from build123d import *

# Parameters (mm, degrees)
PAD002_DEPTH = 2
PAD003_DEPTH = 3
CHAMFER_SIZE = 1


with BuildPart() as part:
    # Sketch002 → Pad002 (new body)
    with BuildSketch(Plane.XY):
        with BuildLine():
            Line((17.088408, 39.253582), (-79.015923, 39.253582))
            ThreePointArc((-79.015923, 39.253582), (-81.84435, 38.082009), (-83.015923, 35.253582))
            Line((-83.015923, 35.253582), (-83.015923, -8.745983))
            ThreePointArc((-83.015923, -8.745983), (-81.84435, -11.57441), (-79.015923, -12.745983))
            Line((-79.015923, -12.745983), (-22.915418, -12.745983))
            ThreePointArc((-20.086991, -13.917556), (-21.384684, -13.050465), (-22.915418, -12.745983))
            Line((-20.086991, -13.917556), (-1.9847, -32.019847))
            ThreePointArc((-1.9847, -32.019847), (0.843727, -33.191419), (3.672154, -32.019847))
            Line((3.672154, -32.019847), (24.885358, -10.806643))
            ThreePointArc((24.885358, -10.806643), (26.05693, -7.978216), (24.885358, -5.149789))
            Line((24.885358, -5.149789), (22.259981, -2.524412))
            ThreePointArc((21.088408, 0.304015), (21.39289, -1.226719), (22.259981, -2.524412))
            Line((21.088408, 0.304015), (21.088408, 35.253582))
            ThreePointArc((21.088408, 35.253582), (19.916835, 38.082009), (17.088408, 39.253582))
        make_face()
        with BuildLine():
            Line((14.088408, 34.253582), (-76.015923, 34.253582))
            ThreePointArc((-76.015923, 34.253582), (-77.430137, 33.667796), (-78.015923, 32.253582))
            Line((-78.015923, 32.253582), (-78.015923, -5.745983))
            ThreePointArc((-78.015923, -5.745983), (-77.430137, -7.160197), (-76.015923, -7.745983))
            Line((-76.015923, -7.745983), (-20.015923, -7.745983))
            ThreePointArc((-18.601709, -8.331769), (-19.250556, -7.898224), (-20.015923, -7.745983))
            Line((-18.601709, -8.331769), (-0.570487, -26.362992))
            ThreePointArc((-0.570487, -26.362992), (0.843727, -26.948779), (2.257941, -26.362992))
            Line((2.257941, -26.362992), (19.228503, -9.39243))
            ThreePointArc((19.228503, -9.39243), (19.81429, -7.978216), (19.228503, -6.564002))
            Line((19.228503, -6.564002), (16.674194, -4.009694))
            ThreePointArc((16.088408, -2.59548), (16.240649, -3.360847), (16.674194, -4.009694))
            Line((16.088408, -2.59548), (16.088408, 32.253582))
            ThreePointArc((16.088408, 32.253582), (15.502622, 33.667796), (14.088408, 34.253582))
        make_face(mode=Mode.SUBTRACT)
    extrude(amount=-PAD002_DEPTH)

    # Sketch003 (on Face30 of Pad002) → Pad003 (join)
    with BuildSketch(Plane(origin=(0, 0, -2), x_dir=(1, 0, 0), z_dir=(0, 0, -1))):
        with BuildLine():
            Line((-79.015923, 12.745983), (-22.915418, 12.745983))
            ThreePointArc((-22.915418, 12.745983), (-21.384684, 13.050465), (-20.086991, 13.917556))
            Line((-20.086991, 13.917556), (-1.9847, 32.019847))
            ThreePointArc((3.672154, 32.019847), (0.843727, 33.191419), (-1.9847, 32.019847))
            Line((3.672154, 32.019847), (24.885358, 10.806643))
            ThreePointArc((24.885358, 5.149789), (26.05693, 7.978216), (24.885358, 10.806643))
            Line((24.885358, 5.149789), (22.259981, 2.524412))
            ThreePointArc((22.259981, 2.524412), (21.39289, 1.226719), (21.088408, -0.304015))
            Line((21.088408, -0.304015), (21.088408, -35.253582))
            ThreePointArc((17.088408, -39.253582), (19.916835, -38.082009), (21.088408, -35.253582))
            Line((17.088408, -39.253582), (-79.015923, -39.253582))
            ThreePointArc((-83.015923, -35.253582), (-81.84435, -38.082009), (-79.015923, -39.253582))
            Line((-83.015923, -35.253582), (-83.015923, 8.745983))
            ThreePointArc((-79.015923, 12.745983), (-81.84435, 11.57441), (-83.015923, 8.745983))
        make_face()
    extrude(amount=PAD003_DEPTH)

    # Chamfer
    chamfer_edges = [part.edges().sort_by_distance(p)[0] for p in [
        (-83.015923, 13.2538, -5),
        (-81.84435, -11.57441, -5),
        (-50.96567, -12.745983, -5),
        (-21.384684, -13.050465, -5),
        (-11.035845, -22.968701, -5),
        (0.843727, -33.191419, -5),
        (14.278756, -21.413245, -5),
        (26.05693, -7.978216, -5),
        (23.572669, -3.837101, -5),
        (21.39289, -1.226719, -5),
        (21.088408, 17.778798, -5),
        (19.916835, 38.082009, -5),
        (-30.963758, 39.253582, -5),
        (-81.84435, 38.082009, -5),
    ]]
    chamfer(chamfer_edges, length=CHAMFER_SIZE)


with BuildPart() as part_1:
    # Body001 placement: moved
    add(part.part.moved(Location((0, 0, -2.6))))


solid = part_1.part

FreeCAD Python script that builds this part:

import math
import FreeCAD as App
import Part
import Sketcher
from FreeCAD import Vector


def edges_at(feature, points):
    """Names of the edges that pass closest to the given points."""
    edges = feature.Shape.Edges
    near = lambda p: min(range(len(edges)), key=lambda i: edges[i].distToShape(Part.Vertex(*p))[0])
    return sorted({f"Edge{near(p) + 1}" for p in points})

doc = App.newDocument("Part")
params = doc.addObject("Spreadsheet::Sheet", "Params")
for row, (alias, value) in enumerate([
    ("sketch1_radius", "4 mm"),
    ("sketch1_radius2", "1.999999 mm"),
    ("sketch1_width", "56 mm"),
    ("sketch1_length", "30.000001 mm"),
    ("sketch1_length2", "23.999999 mm"),
    ("pad1_length", "2 mm"),
    ("sketch2_radius", "4 mm"),
    ("sketch2_length", "30.000001 mm"),
    ("pad2_length", "3 mm"),
    ("chamfer_size", "1 mm"),
], start=1):
    params.set(f"A{row}", alias)
    params.set(f"B{row}", "=" + value)
    params.setAlias(f"B{row}", alias)

body = doc.addObject("PartDesign::Body", "Body")

sketch1 = doc.addObject("Sketcher::SketchObject", "Sketch")
body.addObject(sketch1)
sketch1.AttachmentSupport = (doc.XY_Plane, [""])
sketch1.MapMode = "FlatFace"
sketch1.addGeometry([
    Part.LineSegment(Vector(17.1, 39.3, 0), Vector(-79, 39.3, 0)),
    Part.ArcOfCircle(Part.Circle(Vector(-79, 35.3, 0), Vector(0, 0, 1), 4), math.radians(90), math.radians(180)),
    Part.LineSegment(Vector(-83, 35.3, 0), Vector(-83, -8.7, 0)),
    Part.ArcOfCircle(Part.Circle(Vector(-79, -8.7, 0), Vector(0, 0, 1), 4), math.radians(-180), math.radians(-90)),
    Part.LineSegment(Vector(-79, -12.7, 0), Vector(-22.9, -12.7, 0)),
    Part.ArcOfCircle(Part.Circle(Vector(-22.9, -16.7, 0), Vector(0, 0, 1), 4), math.radians(45), math.radians(90)),
    Part.LineSegment(Vector(-20.1, -13.9, 0), Vector(-2, -32, 0)),
    Part.ArcOfCircle(Part.Circle(Vector(0.8, -29.2, 0), Vector(0, 0, 1), 4), math.radians(-135), math.radians(-45)),
    Part.LineSegment(Vector(3.7, -32, 0), Vector(24.9, -10.8, 0)),
    Part.ArcOfCircle(Part.Circle(Vector(22.1, -8, 0), Vector(0, 0, 1), 4), math.radians(-45), math.radians(45)),
    Part.LineSegment(Vector(24.9, -5.1, 0), Vector(22.3, -2.5, 0)),
    Part.ArcOfCircle(Part.Circle(Vector(25.1, 0.3, 0), Vector(0, 0, 1), 4), math.radians(180), math.radians(225)),
    Part.LineSegment(Vector(21.1, 0.3, 0), Vector(21.1, 35.3, 0)),
    Part.ArcOfCircle(Part.Circle(Vector(17.1, 35.3, 0), Vector(0, 0, 1), 4), math.radians(0), math.radians(90)),
    Part.LineSegment(Vector(-76, 34.3, 0), Vector(14.1, 34.3, 0)),
    Part.ArcOfCircle(Part.Circle(Vector(14.1, 32.3, 0), Vector(0, 0, 1), 2), math.radians(0), math.radians(90)),
    Part.LineSegment(Vector(16.1, 32.3, 0), Vector(16.1, -2.6, 0)),
    Part.ArcOfCircle(Part.Circle(Vector(18.1, -2.6, 0), Vector(0, 0, 1), 2), math.radians(-180), math.radians(-135)),
    Part.LineSegment(Vector(16.7, -4, 0), Vector(19.2, -6.6, 0)),
    Part.ArcOfCircle(Part.Circle(Vector(17.8, -8, 0), Vector(0, 0, 1), 2), math.radians(-45), math.radians(45)),
    Part.LineSegment(Vector(19.2, -9.4, 0), Vector(2.3, -26.4, 0)),
    Part.ArcOfCircle(Part.Circle(Vector(0.8, -24.9, 0), Vector(0, 0, 1), 2), math.radians(-135), math.radians(-45)),
    Part.LineSegment(Vector(-0.6, -26.4, 0), Vector(-18.6, -8.3, 0)),
    Part.ArcOfCircle(Part.Circle(Vector(-20, -9.7, 0), Vector(0, 0, 1), 2), math.radians(45), math.radians(90)),
    Part.LineSegment(Vector(-20, -7.7, 0), Vector(-76, -7.7, 0)),
    Part.ArcOfCircle(Part.Circle(Vector(-76, -5.7, 0), Vector(0, 0, 1), 2), math.radians(180), math.radians(270)),
    Part.LineSegment(Vector(-78, -5.7, 0), Vector(-78, 32.3, 0)),
    Part.ArcOfCircle(Part.Circle(Vector(-76, 32.3, 0), Vector(0, 0, 1), 2), math.radians(90), math.radians(180)),
], False)
sketch1.addConstraint([
    Sketcher.Constraint("Tangent", 0, 2, 1, 1),
    Sketcher.Constraint("Tangent", 1, 2, 2, 1),
    Sketcher.Constraint("Tangent", 2, 2, 3, 1),
    Sketcher.Constraint("Tangent", 3, 2, 4, 1),
    Sketcher.Constraint("Tangent", 4, 2, 5, 2),
    Sketcher.Constraint("Tangent", 5, 1, 6, 1),
    Sketcher.Constraint("Tangent", 6, 2, 7, 1),
    Sketcher.Constraint("Tangent", 7, 2, 8, 1),
    Sketcher.Constraint("Tangent", 8, 2, 9, 1),
    Sketcher.Constraint("Tangent", 9, 2, 10, 1),
    Sketcher.Constraint("Tangent", 10, 2, 11, 2),
    Sketcher.Constraint("Tangent", 11, 1, 12, 1),
    Sketcher.Constraint("Tangent", 12, 2, 13, 1),
    Sketcher.Constraint("Tangent", 13, 2, 0, 1),
    Sketcher.Constraint("Tangent", 14, 2, 15, 2),
    Sketcher.Constraint("Tangent", 15, 1, 16, 1),
    Sketcher.Constraint("Tangent", 16, 2, 17, 1),
    Sketcher.Constraint("Tangent", 17, 2, 18, 1),
    Sketcher.Constraint("Tangent", 18, 2, 19, 2),
    Sketcher.Constraint("Tangent", 19, 1, 20, 1),
    Sketcher.Constraint("Tangent", 20, 2, 21, 2),
    Sketcher.Constraint("Tangent", 21, 1, 22, 1),
    Sketcher.Constraint("Tangent", 22, 2, 23, 1),
    Sketcher.Constraint("Tangent", 23, 2, 24, 1),
    Sketcher.Constraint("Tangent", 24, 2, 25, 2),
    Sketcher.Constraint("Tangent", 25, 1, 26, 1),
    Sketcher.Constraint("Tangent", 26, 2, 27, 2),
    Sketcher.Constraint("Tangent", 27, 1, 14, 1),
    Sketcher.Constraint("Horizontal", 0),
    Sketcher.Constraint("Vertical", 2),
    Sketcher.Constraint("Horizontal", 4),
    Sketcher.Constraint("Vertical", 12),
    Sketcher.Constraint("Horizontal", 14),
    Sketcher.Constraint("Vertical", 16),
    Sketcher.Constraint("Horizontal", 24),
    Sketcher.Constraint("Vertical", 26),
    Sketcher.Constraint("Equal", 1, 3),
    Sketcher.Constraint("Equal", 3, 5),
    Sketcher.Constraint("Equal", 3, 7),
    Sketcher.Constraint("Equal", 7, 9),
    Sketcher.Constraint("Equal", 5, 11),
    Sketcher.Constraint("Equal", 11, 13),
    Sketcher.Constraint("Equal", 15, 19),
    Sketcher.Constraint("Equal", 19, 21),
    Sketcher.Constraint("Equal", 17, 23),
    Sketcher.Constraint("Equal", 21, 25),
    Sketcher.Constraint("Equal", 25, 27),
    Sketcher.Constraint("Perpendicular", 6, 8),
    Sketcher.Constraint("Perpendicular", 8, 10),
    Sketcher.Constraint("Parallel", 10, 18),
    Sketcher.Constraint("Perpendicular", 18, 20),
    Sketcher.Constraint("Perpendicular", 20, 22),
    Sketcher.Constraint("Horizontal", 9, 3, 19, 3),
    Sketcher.Constraint("Horizontal", 6, 2, 7, 2),
    Sketcher.Constraint("Vertical", 7, 3, 21, 3),
    Sketcher.Constraint("Radius", 1, 4.0),
    Sketcher.Constraint("Radius", 15, 1.999999),
    Sketcher.Constraint("DistanceX", 24, 2, 24, 1, 56.0),
    Sketcher.Constraint("Distance", 8, 30.000001),
    Sketcher.Constraint("Distance", 20, 23.999999),
    Sketcher.Constraint("DistanceX", 15, 3, 13, 3, 2.999998),
    Sketcher.Constraint("DistanceY", 15, 3, 13, 3, 2.999998),
    Sketcher.Constraint("DistanceX", 3, 3, 25, 3, 2.999998),
    Sketcher.Constraint("DistanceY", 3, 3, 25, 3, 2.999998),
    Sketcher.Constraint("Distance", 22, 25.499999),
    Sketcher.Constraint("Radius", 17, 2.000004),
    Sketcher.Constraint("DistanceY", 7, 3, 1, 3, 64.444999),
    Sketcher.Constraint("DistanceX", 0, 2, 0, 1, 96.104331),
    Sketcher.Constraint("DistanceX", 6, 2, -1, 1, 1.9847),
    Sketcher.Constraint("DistanceY", -1, 1, 1, 3, 35.253582),
])
sketch1.setExpression("Constraints[55]", "Params.sketch1_radius")
sketch1.setExpression("Constraints[56]", "Params.sketch1_radius2")
sketch1.setExpression("Constraints[57]", "Params.sketch1_width")
sketch1.setExpression("Constraints[58]", "Params.sketch1_length")
sketch1.setExpression("Constraints[59]", "Params.sketch1_length2")
pad1 = doc.addObject("PartDesign::Pad", "Pad")
body.addObject(pad1)
pad1.Profile = sketch1
pad1.setExpression("Length", "Params.pad1_length")
pad1.Reversed = True

sketch2 = doc.addObject("Sketcher::SketchObject", "Sketch001")
body.addObject(sketch2)
sketch2.AttachmentSupport = (doc.XY_Plane, [""])
sketch2.MapMode = "FlatFace"
sketch2.AttachmentOffset = App.Placement(Vector(0, 0, -2), App.Rotation())
sketch2.addGeometry([
    Part.LineSegment(Vector(-22.9, -12.7, 0), Vector(-79, -12.7, 0)),
    Part.ArcOfCircle(Part.Circle(Vector(-79, -8.7, 0), Vector(0, 0, 1), 4), math.radians(-180), math.radians(-90)),
    Part.LineSegment(Vector(-83, -8.7, 0), Vector(-83, 35.3, 0)),
    Part.ArcOfCircle(Part.Circle(Vector(-79, 35.3, 0), Vector(0, 0, 1), 4), math.radians(90), math.radians(180)),
    Part.LineSegment(Vector(-79, 39.3, 0), Vector(17.1, 39.3, 0)),
    Part.ArcOfCircle(Part.Circle(Vector(17.1, 35.3, 0), Vector(0, 0, 1), 4), math.radians(0), math.radians(90)),
    Part.LineSegment(Vector(21.1, 35.3, 0), Vector(21.1, 0.3, 0)),
    Part.ArcOfCircle(Part.Circle(Vector(25.1, 0.3, 0), Vector(0, 0, 1), 4), math.radians(180), math.radians(225)),
    Part.LineSegment(Vector(22.3, -2.5, 0), Vector(24.9, -5.1, 0)),
    Part.ArcOfCircle(Part.Circle(Vector(22.1, -8, 0), Vector(0, 0, 1), 4), math.radians(-45), math.radians(45)),
    Part.LineSegment(Vector(24.9, -10.8, 0), Vector(3.7, -32, 0)),
    Part.ArcOfCircle(Part.Circle(Vector(0.8, -29.2, 0), Vector(0, 0, 1), 4), math.radians(-135), math.radians(-45)),
    Part.LineSegment(Vector(-2, -32, 0), Vector(-20.1, -13.9, 0)),
    Part.ArcOfCircle(Part.Circle(Vector(-22.9, -16.7, 0), Vector(0, 0, 1), 4), math.radians(45), math.radians(90)),
], False)
sketch2.addConstraint([
    Sketcher.Constraint("Tangent", 0, 2, 1, 2),
    Sketcher.Constraint("Tangent", 1, 1, 2, 1),
    Sketcher.Constraint("Tangent", 2, 2, 3, 2),
    Sketcher.Constraint("Tangent", 3, 1, 4, 1),
    Sketcher.Constraint("Tangent", 4, 2, 5, 2),
    Sketcher.Constraint("Tangent", 5, 1, 6, 1),
    Sketcher.Constraint("Tangent", 6, 2, 7, 1),
    Sketcher.Constraint("Tangent", 7, 2, 8, 1),
    Sketcher.Constraint("Tangent", 8, 2, 9, 2),
    Sketcher.Constraint("Tangent", 9, 1, 10, 1),
    Sketcher.Constraint("Tangent", 10, 2, 11, 2),
    Sketcher.Constraint("Tangent", 11, 1, 12, 1),
    Sketcher.Constraint("Tangent", 12, 2, 13, 1),
    Sketcher.Constraint("Tangent", 13, 2, 0, 1),
    Sketcher.Constraint("Horizontal", 0),
    Sketcher.Constraint("Vertical", 2),
    Sketcher.Constraint("Horizontal", 4),
    Sketcher.Constraint("Vertical", 6),
    Sketcher.Constraint("Equal", 1, 3),
    Sketcher.Constraint("Equal", 3, 5),
    Sketcher.Constraint("Equal", 5, 7),
    Sketcher.Constraint("Equal", 5, 9),
    Sketcher.Constraint("Equal", 9, 11),
    Sketcher.Constraint("Equal", 7, 13),
    Sketcher.Constraint("Perpendicular", 8, 10),
    Sketcher.Constraint("Perpendicular", 10, 12),
    Sketcher.Constraint("Horizontal", 10, 2, 11, 1),
    Sketcher.Constraint("Radius", 1, 4.0),
    Sketcher.Constraint("Distance", 10, 30.000001),
    Sketcher.Constraint("DistanceY", 11, 3, 5, 3, 64.444999),
    Sketcher.Constraint("DistanceX", 4, 1, 4, 2, 96.104331),
    Sketcher.Constraint("DistanceX", 11, 1, -1, 1, 1.9847),
    Sketcher.Constraint("DistanceX", 0, 2, 0, 1, 56.100505),
    Sketcher.Constraint("DistanceY", 2, 1, 2, 2, 43.999565),
    Sketcher.Constraint("DistanceY", -1, 1, 3, 3, 35.253582),
])
sketch2.setExpression("Constraints[27]", "Params.sketch2_radius")
sketch2.setExpression("Constraints[28]", "Params.sketch2_length")
pad2 = doc.addObject("PartDesign::Pad", "Pad001")
body.addObject(pad2)
pad2.Profile = sketch2
pad2.setExpression("Length", "Params.pad2_length")
pad2.Reversed = True
doc.recompute()

chamfer = doc.addObject("PartDesign::Chamfer", "Chamfer")
body.addObject(chamfer)
chamfer.Base = (pad2, edges_at(pad2, [
    (-83.016, 13.254, -5),
    (-81.844, -11.574, -5),
    (-50.966, -12.746, -5),
    (-21.385, -13.05, -5),
    (-11.036, -22.969, -5),
    (0.844, -33.191, -5),
    (14.279, -21.413, -5),
    (26.057, -7.978, -5),
    (23.573, -3.837, -5),
    (21.393, -1.227, -5),
    (21.088, 17.779, -5),
    (19.917, 38.082, -5),
    (-30.964, 39.254, -5),
    (-81.844, 38.082, -5),
]))
chamfer.setExpression("Size", "Params.chamfer_size")
body2 = doc.addObject("PartDesign::Body", "Body001")
doc.recompute()

body.Placement = App.Placement(Vector(0, 0, -2.6), App.Rotation(Vector(0, 0, 1), 0))
boolean = doc.addObject("PartDesign::Boolean", "Boolean")
body2.addObject(boolean)
boolean.Type = "Fuse"
boolean.addObjects([body])

doc.recompute()
